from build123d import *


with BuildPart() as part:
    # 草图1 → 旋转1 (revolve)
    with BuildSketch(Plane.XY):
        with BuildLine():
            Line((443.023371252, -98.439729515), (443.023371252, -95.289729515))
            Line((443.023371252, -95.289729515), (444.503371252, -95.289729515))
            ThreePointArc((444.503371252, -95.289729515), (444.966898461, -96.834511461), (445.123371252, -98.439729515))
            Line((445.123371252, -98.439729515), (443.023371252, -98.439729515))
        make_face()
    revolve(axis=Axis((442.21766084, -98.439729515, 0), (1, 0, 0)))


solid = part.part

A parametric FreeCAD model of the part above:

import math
import FreeCAD as App
import Part
import Sketcher
Q = App.Units.Quantity

doc = App.newDocument("Part")
body = doc.addObject("PartDesign::Body", "Body")

sketch1 = body.newObject("Sketcher::SketchObject", "Sketch")
sketch1.AttachmentSupport = (doc.getObject("XY_Plane"), [""])
sketch1.MapMode = "FlatFace"
sketch1.addGeometry([
    Part.LineSegment(App.Vector(443, -95.3, 0), App.Vector(443, -98.4, 0)),
    Part.LineSegment(App.Vector(443, -98.4, 0), App.Vector(445.1, -98.4, 0)),
    Part.ArcOfCircle(Part.Circle(App.Vector(436.8, -98.4, 0), App.Vector(0, 0, 1), 8.3), math.radians(0), math.radians(22)),
    Part.LineSegment(App.Vector(444.5, -95.3, 0), App.Vector(443, -95.3, 0)),
], False)
sketch1.addGeometry(Part.LineSegment(App.Vector(436.8, -98.4, 0), App.Vector(445.1, -98.4, 0)), True)
sketch1.addConstraint([
    Sketcher.Constraint("Coincident", 0, 2, 1, 1),
    Sketcher.Constraint("Coincident", 1, 2, 2, 1),
    Sketcher.Constraint("Coincident", 2, 2, 3, 1),
    Sketcher.Constraint("Coincident", 3, 2, 0, 1),
    Sketcher.Constraint("Vertical", 0),
    Sketcher.Constraint("Horizontal", 1),
    Sketcher.Constraint("Horizontal", 3),
    Sketcher.Constraint("Horizontal", 4),
    Sketcher.Constraint("Coincident", 4, 1, 2, 3),
    Sketcher.Constraint("Coincident", 4, 2, 1, 2),
    Sketcher.Constraint("DistanceX", 1, 1, 1, 2, Q("2.1 mm")),
    Sketcher.Constraint("DistanceX", 3, 2, 3, 1, Q("1.48 mm")),
    Sketcher.Constraint("DistanceY", 0, 2, 0, 1, Q("3.15 mm")),
    Sketcher.Constraint("DistanceY", 2, 3, -1, 1, Q("98.43973 mm")),
    Sketcher.Constraint("DistanceX", -1, 1, 0, 2, Q("443.023371 mm")),
])
revolution = body.newObject("PartDesign::Revolution", "Revolution")
revolution.Profile = sketch1
revolution.ReferenceAxis = (sketch1, ["Axis0"])
revolution.Angle = 360

doc.recompute()
